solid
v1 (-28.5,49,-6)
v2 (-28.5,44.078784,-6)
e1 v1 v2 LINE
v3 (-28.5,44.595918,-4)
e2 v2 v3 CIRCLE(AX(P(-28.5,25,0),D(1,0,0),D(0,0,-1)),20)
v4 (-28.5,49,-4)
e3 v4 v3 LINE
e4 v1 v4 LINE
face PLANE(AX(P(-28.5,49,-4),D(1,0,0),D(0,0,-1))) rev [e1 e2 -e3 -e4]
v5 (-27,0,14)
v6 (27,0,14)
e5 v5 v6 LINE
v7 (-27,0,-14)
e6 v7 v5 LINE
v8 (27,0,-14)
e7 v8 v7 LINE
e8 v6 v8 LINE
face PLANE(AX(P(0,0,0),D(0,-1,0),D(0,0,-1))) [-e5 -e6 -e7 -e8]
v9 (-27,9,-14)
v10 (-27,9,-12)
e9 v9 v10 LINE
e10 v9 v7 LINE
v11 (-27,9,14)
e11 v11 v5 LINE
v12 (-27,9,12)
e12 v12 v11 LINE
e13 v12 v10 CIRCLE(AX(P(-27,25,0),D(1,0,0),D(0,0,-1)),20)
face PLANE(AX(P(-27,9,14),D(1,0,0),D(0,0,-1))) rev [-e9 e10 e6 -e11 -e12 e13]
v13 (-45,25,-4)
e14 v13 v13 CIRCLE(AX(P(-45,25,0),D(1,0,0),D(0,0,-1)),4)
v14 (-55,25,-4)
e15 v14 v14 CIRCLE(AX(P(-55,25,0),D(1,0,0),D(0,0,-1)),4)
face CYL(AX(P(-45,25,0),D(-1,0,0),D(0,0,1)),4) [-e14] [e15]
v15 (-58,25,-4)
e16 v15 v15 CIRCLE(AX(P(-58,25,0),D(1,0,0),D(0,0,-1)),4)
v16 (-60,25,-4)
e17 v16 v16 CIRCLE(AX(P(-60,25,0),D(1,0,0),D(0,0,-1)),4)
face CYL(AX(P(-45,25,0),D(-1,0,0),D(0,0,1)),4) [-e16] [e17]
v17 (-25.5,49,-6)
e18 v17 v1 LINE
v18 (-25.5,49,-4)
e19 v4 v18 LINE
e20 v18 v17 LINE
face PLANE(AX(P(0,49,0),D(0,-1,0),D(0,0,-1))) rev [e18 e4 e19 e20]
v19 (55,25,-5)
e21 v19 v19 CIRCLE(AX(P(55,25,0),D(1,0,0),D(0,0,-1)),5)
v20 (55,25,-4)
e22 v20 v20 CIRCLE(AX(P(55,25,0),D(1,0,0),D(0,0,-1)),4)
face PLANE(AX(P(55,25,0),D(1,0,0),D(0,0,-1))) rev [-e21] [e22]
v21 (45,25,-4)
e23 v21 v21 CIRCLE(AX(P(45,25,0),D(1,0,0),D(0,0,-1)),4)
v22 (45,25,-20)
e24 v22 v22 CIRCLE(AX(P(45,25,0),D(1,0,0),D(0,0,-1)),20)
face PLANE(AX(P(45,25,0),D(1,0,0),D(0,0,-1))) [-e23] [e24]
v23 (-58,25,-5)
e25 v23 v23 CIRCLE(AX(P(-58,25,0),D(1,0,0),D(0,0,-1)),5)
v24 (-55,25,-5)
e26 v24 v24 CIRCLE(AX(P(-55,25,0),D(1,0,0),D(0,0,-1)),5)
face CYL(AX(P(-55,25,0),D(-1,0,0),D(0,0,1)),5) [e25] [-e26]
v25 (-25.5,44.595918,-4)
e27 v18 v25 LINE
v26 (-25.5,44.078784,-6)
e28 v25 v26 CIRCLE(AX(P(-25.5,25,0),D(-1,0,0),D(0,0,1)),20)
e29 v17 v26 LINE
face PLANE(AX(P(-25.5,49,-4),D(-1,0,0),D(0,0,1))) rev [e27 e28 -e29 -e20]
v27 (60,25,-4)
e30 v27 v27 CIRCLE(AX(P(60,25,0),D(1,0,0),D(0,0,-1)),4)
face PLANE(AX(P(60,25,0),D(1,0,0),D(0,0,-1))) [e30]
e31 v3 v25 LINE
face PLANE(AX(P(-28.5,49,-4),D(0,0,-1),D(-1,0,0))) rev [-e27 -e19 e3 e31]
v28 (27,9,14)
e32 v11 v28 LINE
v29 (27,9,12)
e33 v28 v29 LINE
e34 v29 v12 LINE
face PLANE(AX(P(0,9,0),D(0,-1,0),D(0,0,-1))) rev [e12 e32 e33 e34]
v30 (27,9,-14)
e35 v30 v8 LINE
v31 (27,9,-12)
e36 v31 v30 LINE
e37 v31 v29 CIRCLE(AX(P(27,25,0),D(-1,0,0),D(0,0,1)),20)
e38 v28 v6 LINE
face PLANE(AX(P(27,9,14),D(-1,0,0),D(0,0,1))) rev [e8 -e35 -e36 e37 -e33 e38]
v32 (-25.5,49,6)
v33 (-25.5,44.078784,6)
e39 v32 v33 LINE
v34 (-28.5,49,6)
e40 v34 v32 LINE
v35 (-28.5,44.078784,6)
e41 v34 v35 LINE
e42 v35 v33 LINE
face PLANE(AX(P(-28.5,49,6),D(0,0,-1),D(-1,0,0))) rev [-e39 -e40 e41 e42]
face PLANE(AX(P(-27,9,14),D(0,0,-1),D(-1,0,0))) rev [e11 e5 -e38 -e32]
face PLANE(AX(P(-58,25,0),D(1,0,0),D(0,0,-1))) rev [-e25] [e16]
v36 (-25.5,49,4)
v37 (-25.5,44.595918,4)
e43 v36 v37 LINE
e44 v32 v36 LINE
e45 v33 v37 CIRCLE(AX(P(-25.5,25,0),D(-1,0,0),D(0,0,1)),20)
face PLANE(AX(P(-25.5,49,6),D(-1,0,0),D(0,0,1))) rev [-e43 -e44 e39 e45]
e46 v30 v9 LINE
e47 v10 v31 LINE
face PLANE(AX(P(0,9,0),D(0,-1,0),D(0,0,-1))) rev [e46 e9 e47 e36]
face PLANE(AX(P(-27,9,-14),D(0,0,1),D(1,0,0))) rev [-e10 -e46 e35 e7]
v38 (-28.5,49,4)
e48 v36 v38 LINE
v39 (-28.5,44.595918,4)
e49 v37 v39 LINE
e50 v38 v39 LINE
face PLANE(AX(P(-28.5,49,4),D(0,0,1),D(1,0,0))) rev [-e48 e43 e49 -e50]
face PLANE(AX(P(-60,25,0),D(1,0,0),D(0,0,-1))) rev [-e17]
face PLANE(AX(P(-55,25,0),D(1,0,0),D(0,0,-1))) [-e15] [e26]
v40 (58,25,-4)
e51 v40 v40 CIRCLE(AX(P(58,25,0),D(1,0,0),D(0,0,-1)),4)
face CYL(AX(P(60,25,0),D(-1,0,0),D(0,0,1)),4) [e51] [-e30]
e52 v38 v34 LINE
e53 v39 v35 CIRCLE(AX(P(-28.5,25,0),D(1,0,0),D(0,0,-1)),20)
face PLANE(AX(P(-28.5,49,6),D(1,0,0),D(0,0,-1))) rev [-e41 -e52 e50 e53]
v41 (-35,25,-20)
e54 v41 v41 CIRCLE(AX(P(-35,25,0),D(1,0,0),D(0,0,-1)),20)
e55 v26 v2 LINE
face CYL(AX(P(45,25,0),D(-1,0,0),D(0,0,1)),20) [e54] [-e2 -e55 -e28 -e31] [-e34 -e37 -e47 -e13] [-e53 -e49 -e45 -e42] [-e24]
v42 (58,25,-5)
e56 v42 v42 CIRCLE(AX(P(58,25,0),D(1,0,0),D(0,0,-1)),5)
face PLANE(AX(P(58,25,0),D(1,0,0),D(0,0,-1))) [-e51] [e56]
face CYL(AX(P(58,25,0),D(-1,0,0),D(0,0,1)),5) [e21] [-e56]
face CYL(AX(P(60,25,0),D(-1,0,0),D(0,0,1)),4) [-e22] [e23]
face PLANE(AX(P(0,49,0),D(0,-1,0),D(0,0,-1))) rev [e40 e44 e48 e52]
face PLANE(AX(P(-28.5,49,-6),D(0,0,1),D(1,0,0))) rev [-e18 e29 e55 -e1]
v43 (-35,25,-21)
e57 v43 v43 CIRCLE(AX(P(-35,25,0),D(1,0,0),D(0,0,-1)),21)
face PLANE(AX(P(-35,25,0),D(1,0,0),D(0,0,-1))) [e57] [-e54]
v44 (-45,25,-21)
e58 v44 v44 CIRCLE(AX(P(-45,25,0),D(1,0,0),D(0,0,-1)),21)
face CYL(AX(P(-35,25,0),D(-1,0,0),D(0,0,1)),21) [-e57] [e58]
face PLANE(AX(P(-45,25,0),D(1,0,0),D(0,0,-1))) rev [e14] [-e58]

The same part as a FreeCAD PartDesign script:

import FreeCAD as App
import Part
import Sketcher

V = App.Vector

doc = App.newDocument("Part")
body = doc.addObject("PartDesign::Body", "Body")

# Sketch on YZ plane
sketch1 = body.newObject("Sketcher::SketchObject", "Sketch")
sketch1.AttachmentSupport = (doc.getObject("YZ_Plane"), [""])
sketch1.MapMode = "FlatFace"
sketch1.AttachmentOffset = App.Placement(V(0, 0, -45), App.Rotation())
sketch1.addGeometry(Part.Circle(V(25, 0, 0), V(0, 0, 1), 20), False)
sketch1.addConstraint([
    Sketcher.Constraint("PointOnObject", 0, 3, -1),
    Sketcher.Constraint("Diameter", 0, 40.0),
    Sketcher.Constraint("DistanceX", -1, 1, 0, 3, 25.0),
])
pad1 = body.newObject("PartDesign::Pad", "Pad")
pad1.Profile = sketch1
pad1.Length = 90

# Sketch on YZ plane
sketch2 = body.newObject("Sketcher::SketchObject", "Sketch001")
sketch2.AttachmentSupport = (doc.getObject("YZ_Plane"), [""])
sketch2.MapMode = "FlatFace"
sketch2.AttachmentOffset = App.Placement(V(0, 0, -45), App.Rotation())
sketch2.addGeometry(Part.Circle(V(25, 0, 0), V(0, 0, 1), 21), False)
sketch2.addConstraint([
    Sketcher.Constraint("PointOnObject", 0, 3, -1),
    Sketcher.Constraint("Diameter", 0, 42.0),
    Sketcher.Constraint("DistanceX", -1, 1, 0, 3, 25.0),
])
pad2 = body.newObject("PartDesign::Pad", "Pad001")
pad2.Profile = sketch2
pad2.Length = 10

# Sketch on XZ plane
sketch3 = body.newObject("Sketcher::SketchObject", "Sketch002")
sketch3.AttachmentSupport = (doc.getObject("XZ_Plane"), [""])
sketch3.MapMode = "FlatFace"
sketch3.addGeometry([
    Part.LineSegment(V(-27, -14, 0), V(-27, 14, 0)),
    Part.LineSegment(V(-27, 14, 0), V(27, 14, 0)),
    Part.LineSegment(V(27, 14, 0), V(27, -14, 0)),
    Part.LineSegment(V(27, -14, 0), V(-27, -14, 0)),
], False)
sketch3.addConstraint([
    Sketcher.Constraint("Coincident", 0, 2, 1, 1),
    Sketcher.Constraint("Coincident", 1, 2, 2, 1),
    Sketcher.Constraint("Coincident", 2, 2, 3, 1),
    Sketcher.Constraint("Coincident", 3, 2, 0, 1),
    Sketcher.Constraint("Vertical", 0),
    Sketcher.Constraint("Horizontal", 1),
    Sketcher.Constraint("Vertical", 2),
    Sketcher.Constraint("Horizontal", 3),
    Sketcher.Constraint("Symmetric", 0, 2, 2, 2, -1, 1),
    Sketcher.Constraint("DistanceX", 1, 1, 1, 2, 54.0),
    Sketcher.Constraint("DistanceY", 0, 1, 0, 2, 28.0),
])
pad3 = body.newObject("PartDesign::Pad", "Pad002")
pad3.Profile = sketch3
pad3.Length = 9
pad3.Reversed = True

# Sketch on YZ plane
sketch4 = body.newObject("Sketcher::SketchObject", "Sketch003")
sketch4.AttachmentSupport = (doc.getObject("YZ_Plane"), [""])
sketch4.MapMode = "FlatFace"
sketch4.AttachmentOffset = App.Placement(V(0, 0, -60), App.Rotation())
sketch4.addGeometry(Part.Circle(V(25, 0, 0), V(0, 0, 1), 4), False)
sketch4.addConstraint([
    Sketcher.Constraint("PointOnObject", 0, 3, -1),
    Sketcher.Constraint("Diameter", 0, 8.0),
    Sketcher.Constraint("DistanceX", -1, 1, 0, 3, 25.0),
])
pad4 = body.newObject("PartDesign::Pad", "Pad003")
pad4.Profile = sketch4
pad4.Length = 15

# Sketch on YZ plane
sketch5 = body.newObject("Sketcher::SketchObject", "Sketch004")
sketch5.AttachmentSupport = (doc.getObject("YZ_Plane"), [""])
sketch5.MapMode = "FlatFace"
sketch5.AttachmentOffset = App.Placement(V(0, 0, 45), App.Rotation())
sketch5.addGeometry(Part.Circle(V(25, 0, 0), V(0, 0, 1), 4), False)
sketch5.addConstraint([
    Sketcher.Constraint("PointOnObject", 0, 3, -1),
    Sketcher.Constraint("Diameter", 0, 8.0),
    Sketcher.Constraint("DistanceX", -1, 1, 0, 3, 25.0),
])
pad5 = body.newObject("PartDesign::Pad", "Pad004")
pad5.Profile = sketch5
pad5.Length = 15

# Sketch on YZ plane
sketch6 = body.newObject("Sketcher::SketchObject", "Sketch005")
sketch6.AttachmentSupport = (doc.getObject("YZ_Plane"), [""])
sketch6.MapMode = "FlatFace"
sketch6.AttachmentOffset = App.Placement(V(0, 0, -58), App.Rotation())
sketch6.addGeometry(Part.Circle(V(25, 0, 0), V(0, 0, 1), 5), False)
sketch6.addConstraint([
    Sketcher.Constraint("PointOnObject", 0, 3, -1),
    Sketcher.Constraint("Diameter", 0, 10.0),
    Sketcher.Constraint("DistanceX", -1, 1, 0, 3, 25.0),
])
pad6 = body.newObject("PartDesign::Pad", "Pad005")
pad6.Profile = sketch6
pad6.Length = 3

# Sketch on YZ plane
sketch7 = body.newObject("Sketcher::SketchObject", "Sketch006")
sketch7.AttachmentSupport = (doc.getObject("YZ_Plane"), [""])
sketch7.MapMode = "FlatFace"
sketch7.AttachmentOffset = App.Placement(V(0, 0, 55), App.Rotation())
sketch7.addGeometry(Part.Circle(V(25, 0, 0), V(0, 0, 1), 5), False)
sketch7.addConstraint([
    Sketcher.Constraint("PointOnObject", 0, 3, -1),
    Sketcher.Constraint("Diameter", 0, 10.0),
    Sketcher.Constraint("DistanceX", -1, 1, 0, 3, 25.0),
])
pad7 = body.newObject("PartDesign::Pad", "Pad006")
pad7.Profile = sketch7
pad7.Length = 3

# Sketch on XZ plane
sketch8 = body.newObject("Sketcher::SketchObject", "Sketch007")
sketch8.AttachmentSupport = (doc.getObject("XZ_Plane"), [""])
sketch8.MapMode = "FlatFace"
sketch8.AttachmentOffset = App.Placement(V(0, 0, -43), App.Rotation())
sketch8.addGeometry([
    Part.LineSegment(V(-28.5, -6, 0), V(-28.5, -4, 0)),
    Part.LineSegment(V(-28.5, -4, 0), V(-25.5, -4, 0)),
    Part.LineSegment(V(-25.5, -4, 0), V(-25.5, -6, 0)),
    Part.LineSegment(V(-25.5, -6, 0), V(-28.5, -6, 0)),
], False)
sketch8.addConstraint([
    Sketcher.Constraint("Coincident", 0, 2, 1, 1),
    Sketcher.Constraint("Coincident", 1, 2, 2, 1),
    Sketcher.Constraint("Coincident", 2, 2, 3, 1),
    Sketcher.Constraint("Coincident", 3, 2, 0, 1),
    Sketcher.Constraint("Vertical", 0),
    Sketcher.Constraint("Horizontal", 1),
    Sketcher.Constraint("Vertical", 2),
    Sketcher.Constraint("Horizontal", 3),
    Sketcher.Constraint("DistanceX", 1, 1, 1, 2, 3.0),
    Sketcher.Constraint("DistanceY", 0, 1, 0, 2, 2.0),
    Sketcher.Constraint("DistanceY", 0, 2, -1, 1, 4.0),
    Sketcher.Constraint("DistanceX", 0, 2, -1, 1, 28.5),
])
pad8 = body.newObject("PartDesign::Pad", "Pad007")
pad8.Profile = sketch8
pad8.Length = 6
pad8.Reversed = True

# Sketch on XZ plane
sketch9 = body.newObject("Sketcher::SketchObject", "Sketch008")
sketch9.AttachmentSupport = (doc.getObject("XZ_Plane"), [""])
sketch9.MapMode = "FlatFace"
sketch9.AttachmentOffset = App.Placement(V(0, 0, -43), App.Rotation())
sketch9.addGeometry([
    Part.LineSegment(V(-28.5, 4, 0), V(-28.5, 6, 0)),
    Part.LineSegment(V(-28.5, 6, 0), V(-25.5, 6, 0)),
    Part.LineSegment(V(-25.5, 6, 0), V(-25.5, 4, 0)),
    Part.LineSegment(V(-25.5, 4, 0), V(-28.5, 4, 0)),
], False)
sketch9.addConstraint([
    Sketcher.Constraint("Coincident", 0, 2, 1, 1),
    Sketcher.Constraint("Coincident", 1, 2, 2, 1),
    Sketcher.Constraint("Coincident", 2, 2, 3, 1),
    Sketcher.Constraint("Coincident", 3, 2, 0, 1),
    Sketcher.Constraint("Vertical", 0),
    Sketcher.Constraint("Horizontal", 1),
    Sketcher.Constraint("Vertical", 2),
    Sketcher.Constraint("Horizontal", 3),
    Sketcher.Constraint("DistanceX", 1, 1, 1, 2, 3.0),
    Sketcher.Constraint("DistanceY", 0, 1, 0, 2, 2.0),
    Sketcher.Constraint("DistanceY", -1, 1, 0, 2, 6.0),
    Sketcher.Constraint("DistanceX", 0, 2, -1, 1, 28.5),
])
pad9 = body.newObject("PartDesign::Pad", "Pad008")
pad9.Profile = sketch9
pad9.Length = 6
pad9.Reversed = True

doc.recompute()
